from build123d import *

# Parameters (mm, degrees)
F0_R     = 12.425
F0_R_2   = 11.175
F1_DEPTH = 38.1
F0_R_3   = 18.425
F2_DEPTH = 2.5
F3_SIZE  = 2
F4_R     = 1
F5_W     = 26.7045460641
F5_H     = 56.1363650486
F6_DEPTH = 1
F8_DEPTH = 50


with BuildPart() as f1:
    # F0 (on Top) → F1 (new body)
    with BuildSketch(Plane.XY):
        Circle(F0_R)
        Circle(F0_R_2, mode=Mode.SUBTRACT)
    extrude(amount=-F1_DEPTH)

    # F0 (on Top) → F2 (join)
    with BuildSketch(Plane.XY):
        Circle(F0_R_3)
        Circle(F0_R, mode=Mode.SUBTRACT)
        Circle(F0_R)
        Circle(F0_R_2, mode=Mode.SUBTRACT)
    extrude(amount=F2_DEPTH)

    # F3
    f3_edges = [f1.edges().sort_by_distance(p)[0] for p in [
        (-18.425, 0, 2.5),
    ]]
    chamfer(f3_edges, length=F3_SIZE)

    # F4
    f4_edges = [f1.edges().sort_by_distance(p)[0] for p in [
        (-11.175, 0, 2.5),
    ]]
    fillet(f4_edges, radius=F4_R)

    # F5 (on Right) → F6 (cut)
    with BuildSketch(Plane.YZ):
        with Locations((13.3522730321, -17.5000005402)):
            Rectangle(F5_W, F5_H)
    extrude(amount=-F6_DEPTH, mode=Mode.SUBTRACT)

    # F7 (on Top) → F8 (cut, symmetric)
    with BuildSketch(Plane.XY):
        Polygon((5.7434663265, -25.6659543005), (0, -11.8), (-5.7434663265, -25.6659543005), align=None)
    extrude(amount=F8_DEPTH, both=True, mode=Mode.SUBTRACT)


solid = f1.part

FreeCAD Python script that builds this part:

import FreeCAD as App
import Part
import Sketcher

V = App.Vector
Q = App.Units.Quantity


def edges_at(feature, points):
    """Names of the edges that pass closest to the given points."""
    edges = feature.Shape.Edges
    near = lambda p: min(range(len(edges)), key=lambda i: edges[i].distToShape(Part.Vertex(*p))[0])
    return sorted({f"Edge{near(p) + 1}" for p in points})


def add_polygon(sketch, points):
    """Adds a closed chain of lines whose ends are joined by coincident constraints."""
    first, n = sketch.GeometryCount, len(points)
    for a, b in zip(points, points[1:] + points[:1]):
        sketch.addGeometry(Part.LineSegment(App.Vector(*a, 0), App.Vector(*b, 0)), False)
    for i in range(n):
        sketch.addConstraint(Sketcher.Constraint("Coincident", first + i, 2, first + (i + 1) % n, 1))

doc = App.newDocument("Part")
body = doc.addObject("PartDesign::Body", "Body")

# Sketch on XY plane
sketch1 = body.newObject("Sketcher::SketchObject", "Sketch")
sketch1.AttachmentSupport = (doc.getObject("XY_Plane"), [""])
sketch1.MapMode = "FlatFace"
sketch1.addGeometry([
    Part.Circle(V(0, 0, 0), V(0, 0, 1), 12.425),
    Part.Circle(V(0, 0, 0), V(0, 0, 1), 11.175),
], False)
sketch1.addConstraint([
    Sketcher.Constraint("Coincident", 0, 3, -1, 1),
    Sketcher.Constraint("Coincident", 1, 3, -1, 1),
    Sketcher.Constraint("Diameter", 0, Q("24.85 mm")),
    Sketcher.Constraint("Diameter", 1, Q("22.35 mm")),
])
pad1 = body.newObject("PartDesign::Pad", "Pad")
pad1.Profile = sketch1
pad1.Length = 38.1
pad1.Reversed = True

# Sketch on XY plane
sketch2 = body.newObject("Sketcher::SketchObject", "Sketch001")
sketch2.AttachmentSupport = (doc.getObject("XY_Plane"), [""])
sketch2.MapMode = "FlatFace"
sketch2.addGeometry([
    Part.Circle(V(0, 0, 0), V(0, 0, 1), 18.425),
    Part.Circle(V(0, 0, 0), V(0, 0, 1), 11.175),
], False)
sketch2.addConstraint([
    Sketcher.Constraint("Coincident", 0, 3, -1, 1),
    Sketcher.Constraint("Coincident", 1, 3, -1, 1),
    Sketcher.Constraint("Diameter", 0, Q("36.85 mm")),
    Sketcher.Constraint("Diameter", 1, Q("22.35 mm")),
])
pad2 = body.newObject("PartDesign::Pad", "Pad001")
pad2.Profile = sketch2
pad2.Length = 2.5
doc.recompute()

chamfer = body.newObject("PartDesign::Chamfer", "Chamfer")
chamfer.Base = (pad2, edges_at(pad2, [(-18.425, 0, 2.5)]))
chamfer.Size = 2
doc.recompute()

fillet = body.newObject("PartDesign::Fillet", "Fillet")
fillet.Base = (chamfer, edges_at(chamfer, [(-11.175, 0, 2.5)]))
fillet.Radius = 1

# Sketch on YZ plane
sketch3 = body.newObject("Sketcher::SketchObject", "Sketch002")
sketch3.AttachmentSupport = (doc.getObject("YZ_Plane"), [""])
sketch3.MapMode = "FlatFace"
add_polygon(sketch3, [(0, 10.568182), (0, -45.568183), (26.704546, -45.568183), (26.704546, 10.568182)])  # lines 0-3
sketch3.addConstraint([
    Sketcher.Constraint("Vertical", 0),
    Sketcher.Constraint("Horizontal", 1),
    Sketcher.Constraint("Vertical", 2),
    Sketcher.Constraint("Horizontal", 3),
    Sketcher.Constraint("PointOnObject", 0, 2, -2),
    Sketcher.Constraint("DistanceX", 1, 1, 1, 2, Q("26.704546 mm")),
    Sketcher.Constraint("DistanceY", 0, 2, 0, 1, Q("56.136365 mm")),
    Sketcher.Constraint("DistanceY", -1, 1, 2, 2, Q("10.568182 mm")),
])
pocket1 = body.newObject("PartDesign::Pocket", "Pocket")
pocket1.Profile = sketch3
pocket1.Length = 1

# Sketch on XY plane
sketch4 = body.newObject("Sketcher::SketchObject", "Sketch003")
sketch4.AttachmentSupport = (doc.getObject("XY_Plane"), [""])
sketch4.MapMode = "FlatFace"
add_polygon(sketch4, [(5.743466, -25.665954), (0, -11.8), (-5.743466, -25.665954)])  # lines 0-2
sketch4.addConstraint([
    Sketcher.Constraint("Horizontal", 2),
    Sketcher.Constraint("PointOnObject", 0, 2, -2),
    Sketcher.Constraint("Equal", 0, 1),
    Sketcher.Constraint("Angle", 0, Q("112.5 deg")),
    Sketcher.Constraint("DistanceY", 0, 2, -1, 1, Q("11.8 mm")),
    Sketcher.Constraint("Distance", 0, Q("15.008401 mm")),
])
pocket2 = body.newObject("PartDesign::Pocket", "Pocket001")
pocket2.Profile = sketch4
pocket2.Length = 100
pocket2.Midplane = True

doc.recompute()
